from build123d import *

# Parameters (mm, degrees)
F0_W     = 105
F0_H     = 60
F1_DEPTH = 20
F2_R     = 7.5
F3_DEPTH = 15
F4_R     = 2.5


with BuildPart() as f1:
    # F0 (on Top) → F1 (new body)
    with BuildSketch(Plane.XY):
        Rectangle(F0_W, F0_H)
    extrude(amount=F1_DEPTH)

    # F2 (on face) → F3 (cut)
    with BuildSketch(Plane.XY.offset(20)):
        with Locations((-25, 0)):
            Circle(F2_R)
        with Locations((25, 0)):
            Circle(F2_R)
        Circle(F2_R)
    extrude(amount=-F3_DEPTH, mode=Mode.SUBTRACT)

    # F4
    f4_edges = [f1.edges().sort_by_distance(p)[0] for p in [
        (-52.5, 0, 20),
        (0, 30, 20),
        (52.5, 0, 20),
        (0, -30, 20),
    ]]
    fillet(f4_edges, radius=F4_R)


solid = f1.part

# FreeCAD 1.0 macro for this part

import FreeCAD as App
import Part
import Sketcher


def edges_at(feature, points):
    """Names of the edges that pass closest to the given points."""
    edges = feature.Shape.Edges
    near = lambda p: min(range(len(edges)), key=lambda i: edges[i].distToShape(Part.Vertex(*p))[0])
    return sorted({f"Edge{near(p) + 1}" for p in points})

doc = App.newDocument("Part")
body = doc.addObject("PartDesign::Body", "Body")

# Sketch on XY plane
sketch1 = body.newObject("Sketcher::SketchObject", "Sketch")
sketch1.AttachmentSupport = (doc.getObject("XY_Plane"), [""])
sketch1.MapMode = "FlatFace"
sketch1.addGeometry(Part.LineSegment(App.Vector(-52.5, 30, 0), App.Vector(-52.5, -30, 0)), False)
sketch1.addGeometry(Part.LineSegment(App.Vector(-52.5, -30, 0), App.Vector(52.5, -30, 0)), False)
sketch1.addGeometry(Part.LineSegment(App.Vector(52.5, -30, 0), App.Vector(52.5, 30, 0)), False)
sketch1.addGeometry(Part.LineSegment(App.Vector(52.5, 30, 0), App.Vector(-52.5, 30, 0)), False)
sketch1.addConstraint(Sketcher.Constraint("Coincident", 0, 2, 1, 1))
sketch1.addConstraint(Sketcher.Constraint("Coincident", 1, 2, 2, 1))
sketch1.addConstraint(Sketcher.Constraint("Coincident", 2, 2, 3, 1))
sketch1.addConstraint(Sketcher.Constraint("Coincident", 3, 2, 0, 1))
sketch1.addConstraint(Sketcher.Constraint("Vertical", 0))
sketch1.addConstraint(Sketcher.Constraint("Horizontal", 1))
sketch1.addConstraint(Sketcher.Constraint("Vertical", 2))
sketch1.addConstraint(Sketcher.Constraint("Horizontal", 3))
sketch1.addConstraint(Sketcher.Constraint("Symmetric", 0, 2, 2, 2, -1, 1))
sketch1.addConstraint(Sketcher.Constraint("DistanceX", 1, 1, 1, 2, 105.0))
sketch1.addConstraint(Sketcher.Constraint("DistanceY", 0, 2, 0, 1, 60.0))
pad1 = body.newObject("PartDesign::Pad", "Pad")
pad1.Profile = sketch1
pad1.Length = 20

# Sketch on XY plane
sketch2 = body.newObject("Sketcher::SketchObject", "Sketch001")
sketch2.AttachmentSupport = (doc.getObject("XY_Plane"), [""])
sketch2.MapMode = "FlatFace"
sketch2.AttachmentOffset = App.Placement(App.Vector(0, 0, 20), App.Rotation())
sketch2.addGeometry(Part.Circle(App.Vector(-25, 0, 0), App.Vector(0, 0, 1), 7.5), False)
sketch2.addGeometry(Part.Circle(App.Vector(25, 0, 0), App.Vector(0, 0, 1), 7.5), False)
sketch2.addGeometry(Part.Circle(App.Vector(0, 0, 0), App.Vector(0, 0, 1), 7.5), False)
sketch2.addConstraint(Sketcher.Constraint("Coincident", 2, 3, -1, 1))
sketch2.addConstraint(Sketcher.Constraint("Equal", 0, 1))
sketch2.addConstraint(Sketcher.Constraint("Equal", 1, 2))
sketch2.addConstraint(Sketcher.Constraint("Symmetric", 0, 3, 1, 3, -1, 1))
sketch2.addConstraint(Sketcher.Constraint("PointOnObject", 0, 3, -1))
sketch2.addConstraint(Sketcher.Constraint("Diameter", 0, 15.0))
sketch2.addConstraint(Sketcher.Constraint("DistanceX", 0, 3, -1, 1, 25.0))
pocket1 = body.newObject("PartDesign::Pocket", "Pocket")
pocket1.Profile = sketch2
pocket1.Length = 15
doc.recompute()

fillet = body.newObject("PartDesign::Fillet", "Fillet")
fillet.Base = (pocket1, edges_at(pocket1, [
    (-52.5, 0, 20),
    (0, 30, 20),
    (52.5, 0, 20),
    (0, -30, 20),
]))
fillet.Radius = 2.5

doc.recompute()
